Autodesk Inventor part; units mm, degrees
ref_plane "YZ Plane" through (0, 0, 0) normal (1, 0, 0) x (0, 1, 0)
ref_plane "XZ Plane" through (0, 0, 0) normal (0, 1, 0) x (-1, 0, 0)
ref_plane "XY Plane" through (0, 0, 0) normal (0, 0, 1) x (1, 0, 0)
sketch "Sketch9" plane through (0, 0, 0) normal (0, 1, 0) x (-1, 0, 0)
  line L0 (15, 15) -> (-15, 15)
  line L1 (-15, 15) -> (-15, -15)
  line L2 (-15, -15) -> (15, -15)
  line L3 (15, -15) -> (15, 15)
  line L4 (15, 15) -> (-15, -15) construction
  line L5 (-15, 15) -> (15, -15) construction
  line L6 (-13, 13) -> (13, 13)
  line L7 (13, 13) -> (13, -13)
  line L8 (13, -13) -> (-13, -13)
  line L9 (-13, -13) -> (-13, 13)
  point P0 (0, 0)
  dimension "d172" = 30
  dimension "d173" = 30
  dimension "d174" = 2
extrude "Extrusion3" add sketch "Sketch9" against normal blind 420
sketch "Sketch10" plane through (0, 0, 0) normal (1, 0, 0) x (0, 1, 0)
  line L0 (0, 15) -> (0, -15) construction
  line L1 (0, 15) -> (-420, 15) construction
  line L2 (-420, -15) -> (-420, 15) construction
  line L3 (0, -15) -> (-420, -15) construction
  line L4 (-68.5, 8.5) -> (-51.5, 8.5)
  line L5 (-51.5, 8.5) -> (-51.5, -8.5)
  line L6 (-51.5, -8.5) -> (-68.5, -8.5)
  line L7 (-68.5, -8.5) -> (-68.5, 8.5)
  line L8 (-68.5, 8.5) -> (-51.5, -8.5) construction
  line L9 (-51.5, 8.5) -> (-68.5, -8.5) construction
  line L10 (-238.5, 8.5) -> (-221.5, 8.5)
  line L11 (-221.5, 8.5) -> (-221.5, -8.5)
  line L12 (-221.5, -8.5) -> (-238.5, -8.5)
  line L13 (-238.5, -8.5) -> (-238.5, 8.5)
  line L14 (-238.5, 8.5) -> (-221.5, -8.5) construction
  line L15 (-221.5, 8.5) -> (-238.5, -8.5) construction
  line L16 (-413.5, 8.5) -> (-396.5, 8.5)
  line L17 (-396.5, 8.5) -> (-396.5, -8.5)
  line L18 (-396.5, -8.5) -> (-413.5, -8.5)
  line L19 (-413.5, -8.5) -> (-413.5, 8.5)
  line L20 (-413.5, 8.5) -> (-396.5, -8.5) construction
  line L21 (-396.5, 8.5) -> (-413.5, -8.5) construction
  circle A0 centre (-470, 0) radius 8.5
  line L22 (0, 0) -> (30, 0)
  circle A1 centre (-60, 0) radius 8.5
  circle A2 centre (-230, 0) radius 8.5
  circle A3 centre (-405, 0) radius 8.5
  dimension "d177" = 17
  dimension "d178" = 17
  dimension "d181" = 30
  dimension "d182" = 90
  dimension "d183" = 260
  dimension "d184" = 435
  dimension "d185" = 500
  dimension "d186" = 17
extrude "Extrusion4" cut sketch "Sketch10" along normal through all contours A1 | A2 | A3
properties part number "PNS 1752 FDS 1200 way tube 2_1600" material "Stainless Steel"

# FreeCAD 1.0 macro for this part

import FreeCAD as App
import Part
import Sketcher

V = App.Vector


def add_polygon(sketch, points):
    """Adds a closed chain of lines whose ends are joined by coincident constraints."""
    first, n = sketch.GeometryCount, len(points)
    for a, b in zip(points, points[1:] + points[:1]):
        sketch.addGeometry(Part.LineSegment(App.Vector(*a, 0), App.Vector(*b, 0)), False)
    for i in range(n):
        sketch.addConstraint(Sketcher.Constraint("Coincident", first + i, 2, first + (i + 1) % n, 1))

doc = App.newDocument("Part")
body = doc.addObject("PartDesign::Body", "Body")

sketch1 = body.newObject("Sketcher::SketchObject", "Sketch")
sketch1.AttachmentSupport = (doc.getObject("XZ_Plane"), [""])
sketch1.MapMode = "FlatFace"
add_polygon(sketch1, [(-15, -15), (-15, 15), (15, 15), (15, -15)])
add_polygon(sketch1, [(13, -13), (13, 13), (-13, 13), (-13, -13)])
sketch1.addConstraint(Sketcher.Constraint("Vertical", 0))
sketch1.addConstraint(Sketcher.Constraint("Horizontal", 1))
sketch1.addConstraint(Sketcher.Constraint("Vertical", 2))
sketch1.addConstraint(Sketcher.Constraint("Horizontal", 3))
sketch1.addConstraint(Sketcher.Constraint("Vertical", 4))
sketch1.addConstraint(Sketcher.Constraint("Horizontal", 5))
sketch1.addConstraint(Sketcher.Constraint("Vertical", 6))
sketch1.addConstraint(Sketcher.Constraint("Horizontal", 7))
sketch1.addConstraint(Sketcher.Constraint("Symmetric", 0, 2, 2, 2, -1, 1))
sketch1.addConstraint(Sketcher.Constraint("Symmetric", 4, 2, 6, 2, -1, 1))
sketch1.addConstraint(Sketcher.Constraint("Equal", 3, 0))
sketch1.addConstraint(Sketcher.Constraint("Equal", 7, 4))
sketch1.addConstraint(Sketcher.Constraint("DistanceX", 1, 1, 1, 2, 30.0))
sketch1.addConstraint(Sketcher.Constraint("DistanceX", 4, 2, 1, 2, 2.0))
pad1 = body.newObject("PartDesign::Pad", "Pad")
pad1.Profile = sketch1
pad1.Length = 420

sketch2 = body.newObject("Sketcher::SketchObject", "Sketch001")
sketch2.AttachmentSupport = (doc.getObject("YZ_Plane"), [""])
sketch2.MapMode = "FlatFace"
sketch2.addGeometry(Part.Circle(V(-60, 0, 0), V(0, 0, 1), 8.5), False)
sketch2.addGeometry(Part.Circle(V(-230, 0, 0), V(0, 0, 1), 8.5), False)
sketch2.addGeometry(Part.Circle(V(-405, 0, 0), V(0, 0, 1), 8.5), False)
sketch2.addConstraint(Sketcher.Constraint("Equal", 0, 1))
sketch2.addConstraint(Sketcher.Constraint("Equal", 1, 2))
sketch2.addConstraint(Sketcher.Constraint("PointOnObject", 0, 3, -1))
sketch2.addConstraint(Sketcher.Constraint("PointOnObject", 1, 3, -1))
sketch2.addConstraint(Sketcher.Constraint("PointOnObject", 2, 3, -1))
sketch2.addConstraint(Sketcher.Constraint("Diameter", 0, 17.0))
sketch2.addConstraint(Sketcher.Constraint("DistanceX", 0, 3, -1, 1, 60.0))
sketch2.addConstraint(Sketcher.Constraint("DistanceX", 1, 3, -1, 1, 230.0))
sketch2.addConstraint(Sketcher.Constraint("DistanceX", 2, 3, -1, 1, 405.0))
pocket1 = body.newObject("PartDesign::Pocket", "Pocket")
pocket1.Profile = sketch2
pocket1.Type = "ThroughAll"
pocket1.Reversed = True

doc.recompute()
